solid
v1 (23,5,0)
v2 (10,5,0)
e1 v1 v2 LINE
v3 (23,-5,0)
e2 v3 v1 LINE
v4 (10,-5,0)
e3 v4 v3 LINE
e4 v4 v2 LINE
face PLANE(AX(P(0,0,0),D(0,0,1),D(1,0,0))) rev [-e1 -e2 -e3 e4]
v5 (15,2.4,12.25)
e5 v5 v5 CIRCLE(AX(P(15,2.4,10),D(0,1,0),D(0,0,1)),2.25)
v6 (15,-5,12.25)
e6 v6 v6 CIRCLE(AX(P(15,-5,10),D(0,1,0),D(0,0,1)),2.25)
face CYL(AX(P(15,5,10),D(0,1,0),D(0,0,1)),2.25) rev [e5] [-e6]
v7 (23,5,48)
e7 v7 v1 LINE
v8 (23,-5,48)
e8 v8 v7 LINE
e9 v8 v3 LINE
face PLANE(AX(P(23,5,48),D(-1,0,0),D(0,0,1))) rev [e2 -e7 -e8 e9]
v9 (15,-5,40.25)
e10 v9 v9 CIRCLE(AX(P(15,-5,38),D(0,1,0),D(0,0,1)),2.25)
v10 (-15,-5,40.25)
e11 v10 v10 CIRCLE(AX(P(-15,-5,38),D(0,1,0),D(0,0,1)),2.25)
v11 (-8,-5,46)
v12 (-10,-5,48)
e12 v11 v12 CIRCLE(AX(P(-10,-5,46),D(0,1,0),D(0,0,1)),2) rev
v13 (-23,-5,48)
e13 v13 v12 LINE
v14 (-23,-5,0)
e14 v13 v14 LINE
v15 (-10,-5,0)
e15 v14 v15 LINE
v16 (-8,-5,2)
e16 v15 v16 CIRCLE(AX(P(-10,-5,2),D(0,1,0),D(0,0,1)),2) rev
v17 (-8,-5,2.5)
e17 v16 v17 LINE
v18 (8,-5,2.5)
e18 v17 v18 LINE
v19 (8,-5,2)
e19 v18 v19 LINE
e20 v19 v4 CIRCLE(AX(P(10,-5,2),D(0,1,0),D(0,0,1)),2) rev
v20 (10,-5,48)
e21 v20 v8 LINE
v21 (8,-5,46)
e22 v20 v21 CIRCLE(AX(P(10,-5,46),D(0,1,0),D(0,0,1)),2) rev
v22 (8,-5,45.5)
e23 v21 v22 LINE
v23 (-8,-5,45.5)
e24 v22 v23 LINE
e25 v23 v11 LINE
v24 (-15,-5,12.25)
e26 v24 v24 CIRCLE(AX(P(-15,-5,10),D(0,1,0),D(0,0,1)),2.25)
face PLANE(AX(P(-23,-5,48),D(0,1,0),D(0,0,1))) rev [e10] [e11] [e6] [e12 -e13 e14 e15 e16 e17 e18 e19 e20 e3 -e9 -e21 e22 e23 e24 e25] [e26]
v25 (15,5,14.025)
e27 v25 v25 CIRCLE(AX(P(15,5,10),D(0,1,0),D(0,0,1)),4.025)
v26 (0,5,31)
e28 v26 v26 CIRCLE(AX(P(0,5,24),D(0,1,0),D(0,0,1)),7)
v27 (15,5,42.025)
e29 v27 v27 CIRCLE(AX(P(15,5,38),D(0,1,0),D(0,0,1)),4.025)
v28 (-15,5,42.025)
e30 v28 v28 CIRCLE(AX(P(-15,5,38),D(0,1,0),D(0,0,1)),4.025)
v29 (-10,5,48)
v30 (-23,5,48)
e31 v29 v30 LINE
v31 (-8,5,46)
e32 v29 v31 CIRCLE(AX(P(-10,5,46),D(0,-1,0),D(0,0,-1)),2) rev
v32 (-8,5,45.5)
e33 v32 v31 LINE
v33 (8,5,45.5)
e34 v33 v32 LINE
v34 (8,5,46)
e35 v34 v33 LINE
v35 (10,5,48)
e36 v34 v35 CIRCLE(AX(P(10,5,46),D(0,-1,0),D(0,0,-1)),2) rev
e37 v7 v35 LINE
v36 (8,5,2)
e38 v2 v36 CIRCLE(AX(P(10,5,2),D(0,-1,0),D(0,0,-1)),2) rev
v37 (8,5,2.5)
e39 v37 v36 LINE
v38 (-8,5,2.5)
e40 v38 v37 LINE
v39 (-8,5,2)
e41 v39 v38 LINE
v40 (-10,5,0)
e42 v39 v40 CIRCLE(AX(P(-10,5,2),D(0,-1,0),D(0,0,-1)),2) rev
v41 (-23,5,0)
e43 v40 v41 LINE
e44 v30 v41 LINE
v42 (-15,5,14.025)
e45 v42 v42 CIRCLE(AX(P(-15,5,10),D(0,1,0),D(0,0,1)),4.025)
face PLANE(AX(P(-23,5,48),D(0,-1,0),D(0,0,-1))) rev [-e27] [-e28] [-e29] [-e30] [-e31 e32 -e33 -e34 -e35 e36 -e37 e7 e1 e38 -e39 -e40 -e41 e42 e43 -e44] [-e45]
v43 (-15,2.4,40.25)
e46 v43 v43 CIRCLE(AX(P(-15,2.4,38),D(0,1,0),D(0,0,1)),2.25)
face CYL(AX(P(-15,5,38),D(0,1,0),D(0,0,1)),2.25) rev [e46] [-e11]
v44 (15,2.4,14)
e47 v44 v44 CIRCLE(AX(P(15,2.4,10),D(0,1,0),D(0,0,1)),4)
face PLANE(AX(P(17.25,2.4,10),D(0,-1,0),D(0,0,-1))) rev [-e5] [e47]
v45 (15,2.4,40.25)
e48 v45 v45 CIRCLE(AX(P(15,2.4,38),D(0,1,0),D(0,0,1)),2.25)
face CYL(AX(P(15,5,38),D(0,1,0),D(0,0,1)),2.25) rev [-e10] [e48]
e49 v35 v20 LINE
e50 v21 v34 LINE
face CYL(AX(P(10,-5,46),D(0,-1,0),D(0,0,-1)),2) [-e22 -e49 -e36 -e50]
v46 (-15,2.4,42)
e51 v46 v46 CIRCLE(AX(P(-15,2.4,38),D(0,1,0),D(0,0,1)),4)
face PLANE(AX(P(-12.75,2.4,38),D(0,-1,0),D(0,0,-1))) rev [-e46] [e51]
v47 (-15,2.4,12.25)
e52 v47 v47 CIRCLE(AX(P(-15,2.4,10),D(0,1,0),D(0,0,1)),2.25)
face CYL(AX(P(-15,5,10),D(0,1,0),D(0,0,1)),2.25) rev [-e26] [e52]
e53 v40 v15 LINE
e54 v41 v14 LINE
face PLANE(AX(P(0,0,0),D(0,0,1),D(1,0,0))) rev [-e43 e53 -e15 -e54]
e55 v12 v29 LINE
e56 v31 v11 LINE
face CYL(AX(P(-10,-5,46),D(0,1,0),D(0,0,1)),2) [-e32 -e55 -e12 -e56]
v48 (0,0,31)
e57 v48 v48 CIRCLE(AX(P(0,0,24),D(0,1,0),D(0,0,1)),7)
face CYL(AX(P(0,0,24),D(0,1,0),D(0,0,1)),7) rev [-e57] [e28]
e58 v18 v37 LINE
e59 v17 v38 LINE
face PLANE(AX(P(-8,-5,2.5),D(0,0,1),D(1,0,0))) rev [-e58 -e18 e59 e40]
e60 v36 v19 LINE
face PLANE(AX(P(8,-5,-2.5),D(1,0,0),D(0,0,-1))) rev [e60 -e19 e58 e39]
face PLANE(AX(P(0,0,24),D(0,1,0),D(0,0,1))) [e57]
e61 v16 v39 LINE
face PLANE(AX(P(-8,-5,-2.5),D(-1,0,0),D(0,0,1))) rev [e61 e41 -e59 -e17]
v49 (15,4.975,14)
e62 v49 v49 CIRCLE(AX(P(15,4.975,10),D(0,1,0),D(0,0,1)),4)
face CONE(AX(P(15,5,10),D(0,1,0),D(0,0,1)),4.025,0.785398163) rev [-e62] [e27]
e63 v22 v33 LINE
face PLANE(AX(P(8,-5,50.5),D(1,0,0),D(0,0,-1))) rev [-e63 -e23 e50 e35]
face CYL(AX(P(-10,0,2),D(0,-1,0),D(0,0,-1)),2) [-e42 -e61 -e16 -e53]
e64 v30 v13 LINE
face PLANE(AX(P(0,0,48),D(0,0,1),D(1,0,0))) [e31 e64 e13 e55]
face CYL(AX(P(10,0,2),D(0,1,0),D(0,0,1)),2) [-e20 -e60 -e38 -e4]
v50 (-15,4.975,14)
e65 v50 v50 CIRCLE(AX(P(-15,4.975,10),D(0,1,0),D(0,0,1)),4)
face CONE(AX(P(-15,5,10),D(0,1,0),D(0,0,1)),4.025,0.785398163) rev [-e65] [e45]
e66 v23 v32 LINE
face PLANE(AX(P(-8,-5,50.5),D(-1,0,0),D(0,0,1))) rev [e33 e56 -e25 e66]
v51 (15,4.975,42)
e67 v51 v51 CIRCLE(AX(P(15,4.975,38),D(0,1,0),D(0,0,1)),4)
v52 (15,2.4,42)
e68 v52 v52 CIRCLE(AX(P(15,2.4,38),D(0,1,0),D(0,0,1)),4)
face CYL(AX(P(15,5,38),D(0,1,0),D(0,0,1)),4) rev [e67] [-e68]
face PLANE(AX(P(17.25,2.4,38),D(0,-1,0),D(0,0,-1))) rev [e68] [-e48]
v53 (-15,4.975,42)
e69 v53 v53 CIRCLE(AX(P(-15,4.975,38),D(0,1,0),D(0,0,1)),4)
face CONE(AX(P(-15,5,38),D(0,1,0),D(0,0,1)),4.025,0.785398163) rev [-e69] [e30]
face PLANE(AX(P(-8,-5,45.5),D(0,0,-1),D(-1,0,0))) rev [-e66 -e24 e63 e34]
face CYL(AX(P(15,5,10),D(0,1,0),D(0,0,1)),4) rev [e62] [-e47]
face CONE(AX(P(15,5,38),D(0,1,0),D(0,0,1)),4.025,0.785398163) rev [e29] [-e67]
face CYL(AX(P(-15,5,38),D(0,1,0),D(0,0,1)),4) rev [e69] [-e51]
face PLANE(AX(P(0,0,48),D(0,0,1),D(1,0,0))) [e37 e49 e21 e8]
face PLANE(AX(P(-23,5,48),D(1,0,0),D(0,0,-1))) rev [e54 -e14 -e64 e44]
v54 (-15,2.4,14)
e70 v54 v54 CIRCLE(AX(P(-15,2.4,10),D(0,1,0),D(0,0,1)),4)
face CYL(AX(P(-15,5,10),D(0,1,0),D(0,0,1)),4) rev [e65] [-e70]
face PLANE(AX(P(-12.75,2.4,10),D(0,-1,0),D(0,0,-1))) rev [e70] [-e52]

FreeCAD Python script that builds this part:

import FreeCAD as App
import Part
import Sketcher
Q = App.Units.Quantity


def edges_at(feature, points):
    """Names of the edges that pass closest to the given points."""
    edges = feature.Shape.Edges
    near = lambda p: min(range(len(edges)), key=lambda i: edges[i].distToShape(Part.Vertex(*p))[0])
    return sorted({f"Edge{near(p) + 1}" for p in points})

doc = App.newDocument("Part")
body = doc.addObject("PartDesign::Body", "Body")

# Sketch on XY plane
sketch1 = doc.addObject("Sketcher::SketchObject", "Sketch")
body.addObject(sketch1)
sketch1.AttachmentSupport = (doc.XY_Plane, [""])
sketch1.MapMode = "FlatFace"
sketch1.addGeometry([
    Part.LineSegment(App.Vector(-23, 5, 0), App.Vector(-23, -5, 0)),
    Part.LineSegment(App.Vector(-23, -5, 0), App.Vector(23, -5, 0)),
    Part.LineSegment(App.Vector(23, -5, 0), App.Vector(23, 5, 0)),
    Part.LineSegment(App.Vector(23, 5, 0), App.Vector(-23, 5, 0)),
], False)
sketch1.addConstraint([
    Sketcher.Constraint("Coincident", 0, 2, 1, 1),
    Sketcher.Constraint("Coincident", 1, 2, 2, 1),
    Sketcher.Constraint("Coincident", 2, 2, 3, 1),
    Sketcher.Constraint("Coincident", 3, 2, 0, 1),
    Sketcher.Constraint("Vertical", 0),
    Sketcher.Constraint("Horizontal", 1),
    Sketcher.Constraint("Vertical", 2),
    Sketcher.Constraint("Horizontal", 3),
    Sketcher.Constraint("Symmetric", 0, 2, 2, 2, -1, 1),
    Sketcher.Constraint("DistanceX", 1, 1, 1, 2, 46.0),
    Sketcher.Constraint("DistanceY", 0, 2, 0, 1, 10.0),
])
pad1 = doc.addObject("PartDesign::Pad", "Pad")
body.addObject(pad1)
pad1.Profile = sketch1
pad1.Length = 48

# Sketch on XZ plane
sketch2 = doc.addObject("Sketcher::SketchObject", "Sketch001")
body.addObject(sketch2)
sketch2.AttachmentSupport = (doc.XZ_Plane, [""])
sketch2.MapMode = "FlatFace"
sketch2.AttachmentOffset = App.Placement(App.Vector(0, 0, -5), App.Rotation())
sketch2.addGeometry([
    Part.LineSegment(App.Vector(-8, 46, 0), App.Vector(-8, 50, 0)),  # 0
    Part.LineSegment(App.Vector(-8, 50, 0), App.Vector(8, 50, 0)),  # 1
    Part.LineSegment(App.Vector(8, 50, 0), App.Vector(8, 46, 0)),  # 2
    Part.LineSegment(App.Vector(8, 46, 0), App.Vector(-8, 46, 0)),  # 3
    Part.LineSegment(App.Vector(-8, -2, 0), App.Vector(-8, 2, 0)),  # 4
    Part.LineSegment(App.Vector(-8, 2, 0), App.Vector(8, 2, 0)),  # 5
    Part.LineSegment(App.Vector(8, 2, 0), App.Vector(8, -2, 0)),  # 6
    Part.LineSegment(App.Vector(8, -2, 0), App.Vector(-8, -2, 0)),  # 7
], False)
sketch2.addConstraint([
    Sketcher.Constraint("Coincident", 0, 2, 1, 1),
    Sketcher.Constraint("Coincident", 1, 2, 2, 1),
    Sketcher.Constraint("Coincident", 2, 2, 3, 1),
    Sketcher.Constraint("Coincident", 3, 2, 0, 1),
    Sketcher.Constraint("Coincident", 4, 2, 5, 1),
    Sketcher.Constraint("Coincident", 5, 2, 6, 1),
    Sketcher.Constraint("Coincident", 6, 2, 7, 1),
    Sketcher.Constraint("Coincident", 7, 2, 4, 1),
    Sketcher.Constraint("Vertical", 0),
    Sketcher.Constraint("Horizontal", 1),
    Sketcher.Constraint("Vertical", 2),
    Sketcher.Constraint("Horizontal", 3),
    Sketcher.Constraint("Vertical", 4),
    Sketcher.Constraint("Horizontal", 5),
    Sketcher.Constraint("Vertical", 6),
    Sketcher.Constraint("Horizontal", 7),
    Sketcher.Constraint("Symmetric", 4, 2, 6, 2, -1, 1),
    Sketcher.Constraint("Vertical", 3, 2, 4, 2),
    Sketcher.Constraint("Vertical", 2, 2, 5, 2),
    Sketcher.Constraint("Equal", 2, 4),
    Sketcher.Constraint("DistanceX", 1, 1, 1, 2, 16.0),
    Sketcher.Constraint("DistanceY", 0, 1, 0, 2, 5.0),
    Sketcher.Constraint("DistanceY", 4, 2, 3, 2, 43.0),
])
pocket1 = doc.addObject("PartDesign::Pocket", "Pocket")
body.addObject(pocket1)
pocket1.Profile = sketch2
pocket1.Length = 10
pocket1.Reversed = True
doc.recompute()

fillet = doc.addObject("PartDesign::Fillet", "Fillet")
body.addObject(fillet)
fillet.Base = (pocket1, edges_at(pocket1, [
    (-8, 0, 0),
    (8, 0, 0),
    (8, 0, 48),
    (-8, 0, 48),
]))
fillet.Radius = 2

# Sketch on YZ plane
sketch3 = doc.addObject("Sketcher::SketchObject", "Sketch002")
body.addObject(sketch3)
sketch3.AttachmentSupport = (doc.YZ_Plane, [""])
sketch3.MapMode = "FlatFace"
sketch3.AttachmentOffset = App.Placement(App.Vector(0, 0, -15), App.Rotation())
sketch3.addGeometry([
    Part.LineSegment(App.Vector(-6.352, 10, 0), App.Vector(5, 10, 0)),  # 0
    Part.LineSegment(App.Vector(5, 10, 0), App.Vector(5, 14.025, 0)),  # 1
    Part.LineSegment(App.Vector(5, 14.025, 0), App.Vector(4.975, 14, 0)),  # 2
    Part.LineSegment(App.Vector(4.975, 14, 0), App.Vector(2.4, 14, 0)),  # 3
    Part.LineSegment(App.Vector(2.4, 14, 0), App.Vector(2.4, 12.25, 0)),  # 4
    Part.LineSegment(App.Vector(2.4, 12.25, 0), App.Vector(-5, 12.25, 0)),  # 5
    Part.LineSegment(App.Vector(-5, 12.25, 0), App.Vector(-6.352, 10, 0)),  # 6
], False)
sketch3.addGeometry(Part.LineSegment(App.Vector(5, 10, 0), App.Vector(-6.352, 10, 0)), True)  # axis
sketch3.addConstraint([
    Sketcher.Constraint("Coincident", 0, 2, 1, 1),
    Sketcher.Constraint("Coincident", 1, 2, 2, 1),
    Sketcher.Constraint("Coincident", 2, 2, 3, 1),
    Sketcher.Constraint("Coincident", 3, 2, 4, 1),
    Sketcher.Constraint("Coincident", 4, 2, 5, 1),
    Sketcher.Constraint("Coincident", 5, 2, 6, 1),
    Sketcher.Constraint("Coincident", 6, 2, 0, 1),
    Sketcher.Constraint("Horizontal", 0),
    Sketcher.Constraint("Vertical", 1),
    Sketcher.Constraint("Horizontal", 3),
    Sketcher.Constraint("Vertical", 4),
    Sketcher.Constraint("Horizontal", 5),
    Sketcher.Constraint("Horizontal", 7),
    Sketcher.Constraint("Coincident", 7, 1, 0, 2),
    Sketcher.Constraint("Equal", 0, 7),
    Sketcher.Constraint("Angle", 2, Q("-135 deg")),
    Sketcher.Constraint("Angle", 6, Q("-121 deg")),
    Sketcher.Constraint("DistanceX", 5, 2, 5, 1, 7.4),
    Sketcher.Constraint("DistanceX", -1, 1, 0, 2, 5.0),
    Sketcher.Constraint("DistanceY", -1, 1, 0, 2, 10.0),
    Sketcher.Constraint("DistanceY", -1, 1, 2, 2, 14.0),
    Sketcher.Constraint("DistanceX", 5, 2, -1, 1, 5.0),
    Sketcher.Constraint("DistanceY", 4, 2, 4, 1, 1.75),
    Sketcher.Constraint("DistanceX", 3, 2, 3, 1, 2.575),
])
groove = doc.addObject("PartDesign::Groove", "Groove")
body.addObject(groove)
groove.Profile = sketch3
groove.ReferenceAxis = (sketch3, ["Axis0"])
groove.Angle = 360
doc.recompute()

linearpattern = doc.addObject("PartDesign::LinearPattern", "LinearPattern")
body.addObject(linearpattern)
linearpattern.Originals = [groove]
linearpattern.Direction = (doc.Z_Axis, [""])
linearpattern.Mode = "offset"
linearpattern.Offset = 28
linearpattern.Occurrences = 2
body.Tip = linearpattern
doc.recompute()

datumline = doc.addObject("PartDesign::Line", "DatumLine")
body.addObject(datumline)
datumline.Placement = App.Placement(App.Vector(0, 0, 0), App.Rotation(App.Vector(0, 0, 1), App.Vector(0.731055268, 0, 0.68231825)))
linearpattern2 = doc.addObject("PartDesign::LinearPattern", "LinearPattern001")
body.addObject(linearpattern2)
linearpattern2.Originals = [groove]
linearpattern2.Direction = (datumline, [""])
linearpattern2.Mode = "offset"
linearpattern2.Offset = 41.036569
linearpattern2.Occurrences = 2
body.Tip = linearpattern2
doc.recompute()

linearpattern3 = doc.addObject("PartDesign::LinearPattern", "LinearPattern002")
body.addObject(linearpattern3)
linearpattern3.Originals = [groove]
linearpattern3.Direction = (doc.X_Axis, [""])
linearpattern3.Mode = "offset"
linearpattern3.Offset = 30
linearpattern3.Occurrences = 2
body.Tip = linearpattern3

# Sketch on XZ plane
sketch4 = doc.addObject("Sketcher::SketchObject", "Sketch003")
body.addObject(sketch4)
sketch4.AttachmentSupport = (doc.XZ_Plane, [""])
sketch4.MapMode = "FlatFace"
sketch4.AttachmentOffset = App.Placement(App.Vector(0, 0, -5), App.Rotation())
sketch4.addGeometry(Part.Circle(App.Vector(0, 24, 0), App.Vector(0, 0, 1), 7), False)
sketch4.addConstraint([
    Sketcher.Constraint("PointOnObject", 0, 3, -2),
    Sketcher.Constraint("Diameter", 0, 14.0),
    Sketcher.Constraint("DistanceY", -1, 1, 0, 3, 24.0),
])
pocket2 = doc.addObject("PartDesign::Pocket", "Pocket001")
body.addObject(pocket2)
pocket2.Profile = sketch4
pocket2.Length = 5
pocket2.Reversed = True

doc.recompute()
